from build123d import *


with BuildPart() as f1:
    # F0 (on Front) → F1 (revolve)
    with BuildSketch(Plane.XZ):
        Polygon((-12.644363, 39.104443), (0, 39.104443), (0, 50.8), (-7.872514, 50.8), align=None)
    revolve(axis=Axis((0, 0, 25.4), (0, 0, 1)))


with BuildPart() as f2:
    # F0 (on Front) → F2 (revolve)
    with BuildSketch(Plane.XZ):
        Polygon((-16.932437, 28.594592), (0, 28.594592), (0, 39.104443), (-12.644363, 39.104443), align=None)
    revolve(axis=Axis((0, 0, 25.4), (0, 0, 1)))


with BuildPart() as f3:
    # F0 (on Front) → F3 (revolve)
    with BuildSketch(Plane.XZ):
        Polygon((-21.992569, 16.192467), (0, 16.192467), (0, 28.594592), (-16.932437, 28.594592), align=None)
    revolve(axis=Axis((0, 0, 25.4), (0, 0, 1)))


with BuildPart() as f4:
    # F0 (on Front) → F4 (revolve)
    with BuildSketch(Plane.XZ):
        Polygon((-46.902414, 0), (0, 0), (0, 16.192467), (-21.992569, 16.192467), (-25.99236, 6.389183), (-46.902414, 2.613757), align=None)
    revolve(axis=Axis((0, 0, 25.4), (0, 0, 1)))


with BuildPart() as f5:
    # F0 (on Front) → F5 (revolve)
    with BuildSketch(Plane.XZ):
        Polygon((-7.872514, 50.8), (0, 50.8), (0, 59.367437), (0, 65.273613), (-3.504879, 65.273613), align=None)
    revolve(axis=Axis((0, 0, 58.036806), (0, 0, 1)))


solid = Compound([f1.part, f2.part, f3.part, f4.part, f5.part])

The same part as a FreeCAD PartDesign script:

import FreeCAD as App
import Part
import Sketcher

V = App.Vector


def add_polygon(sketch, points):
    """Adds a closed chain of lines whose ends are joined by coincident constraints."""
    first, n = sketch.GeometryCount, len(points)
    for a, b in zip(points, points[1:] + points[:1]):
        sketch.addGeometry(Part.LineSegment(App.Vector(*a, 0), App.Vector(*b, 0)), False)
    for i in range(n):
        sketch.addConstraint(Sketcher.Constraint("Coincident", first + i, 2, first + (i + 1) % n, 1))

doc = App.newDocument("Part")
body = doc.addObject("PartDesign::Body", "Body")

# Sketch on XZ plane
sketch1 = body.newObject("Sketcher::SketchObject", "Sketch")
sketch1.AttachmentSupport = (doc.getObject("XZ_Plane"), [""])
sketch1.MapMode = "FlatFace"
add_polygon(sketch1, [(-13, 39), (0, 39), (0, 51), (-8, 51)])  # lines 0-3
sketch1.addConstraint([
    Sketcher.Constraint("Horizontal", 0),
    Sketcher.Constraint("Vertical", 1),
    Sketcher.Constraint("Horizontal", 2),
    Sketcher.Constraint("PointOnObject", 0, 2, -2),
    Sketcher.Constraint("DistanceY", -1, 1, 1, 2, 50.8),
    Sketcher.Constraint("Distance", 3, 12.631571),
    Sketcher.Constraint("DistanceX", 0, 1, 0, 2, 12.644363),
    Sketcher.Constraint("DistanceX", 2, 2, 2, 1, 7.872514),
])
revolution = body.newObject("PartDesign::Revolution", "Revolution")
revolution.Profile = sketch1
revolution.ReferenceAxis = (sketch1, ["V_Axis"])
revolution.Angle = 360
body2 = doc.addObject("PartDesign::Body", "Body001")

# Sketch on XZ plane
sketch2 = body2.newObject("Sketcher::SketchObject", "Sketch001")
sketch2.AttachmentSupport = (doc.getObject("XZ_Plane001"), [""])
sketch2.MapMode = "FlatFace"
add_polygon(sketch2, [(-17, 29), (0, 29), (0, 39), (-13, 39)])  # lines 0-3
sketch2.addConstraint([
    Sketcher.Constraint("Horizontal", 0),
    Sketcher.Constraint("Vertical", 1),
    Sketcher.Constraint("Horizontal", 2),
    Sketcher.Constraint("PointOnObject", 0, 2, -2),
    Sketcher.Constraint("DistanceY", 1, 1, 1, 2, 10.509851),
    Sketcher.Constraint("Distance", 3, 11.350971),
    Sketcher.Constraint("DistanceX", 0, 1, 0, 2, 16.932437),
    Sketcher.Constraint("DistanceY", -1, 1, 0, 2, 28.594592),
])
revolution2 = body2.newObject("PartDesign::Revolution", "Revolution001")
revolution2.Profile = sketch2
revolution2.ReferenceAxis = (sketch2, ["V_Axis"])
revolution2.Angle = 360
body3 = doc.addObject("PartDesign::Body", "Body002")

# Sketch on XZ plane
sketch3 = body3.newObject("Sketcher::SketchObject", "Sketch002")
sketch3.AttachmentSupport = (doc.getObject("XZ_Plane002"), [""])
sketch3.MapMode = "FlatFace"
add_polygon(sketch3, [(-22, 16), (0, 16), (0, 29), (-17, 29)])  # lines 0-3
sketch3.addConstraint([
    Sketcher.Constraint("Horizontal", 0),
    Sketcher.Constraint("Vertical", 1),
    Sketcher.Constraint("Horizontal", 2),
    Sketcher.Constraint("PointOnObject", 0, 2, -2),
    Sketcher.Constraint("DistanceX", 0, 1, 0, 2, 21.992569),
    Sketcher.Constraint("DistanceX", 2, 2, 2, 1, 16.932437),
    Sketcher.Constraint("DistanceY", 1, 1, 1, 2, 12.402125),
    Sketcher.Constraint("DistanceY", -1, 1, 1, 2, 28.594592),
])
revolution3 = body3.newObject("PartDesign::Revolution", "Revolution002")
revolution3.Profile = sketch3
revolution3.ReferenceAxis = (sketch3, ["V_Axis"])
revolution3.Angle = 360
body4 = doc.addObject("PartDesign::Body", "Body003")

# Sketch on XZ plane
sketch4 = body4.newObject("Sketcher::SketchObject", "Sketch003")
sketch4.AttachmentSupport = (doc.getObject("XZ_Plane003"), [""])
sketch4.MapMode = "FlatFace"
add_polygon(sketch4, [(-46.9, 0), (0, 0), (0, 16.2), (-22, 16.2), (-26, 6.4), (-46.9, 2.6)])  # lines 0-5
sketch4.addConstraint([
    Sketcher.Constraint("Horizontal", 0),
    Sketcher.Constraint("Vertical", 1),
    Sketcher.Constraint("Horizontal", 2),
    Sketcher.Constraint("Vertical", 5),
    Sketcher.Constraint("Coincident", 0, 2, -1, 1),
    Sketcher.Constraint("DistanceX", 2, 2, 2, 1, 21.992569),
    Sketcher.Constraint("DistanceX", 0, 1, 0, 2, 46.902414),
    Sketcher.Constraint("DistanceY", 1, 1, 1, 2, 16.192467),
    Sketcher.Constraint("DistanceY", 5, 2, 5, 1, 2.613757),
    Sketcher.Constraint("DistanceX", 3, 2, -1, 1, 25.99236),
    Sketcher.Constraint("Distance", 3, 10.587856),
])
revolution4 = body4.newObject("PartDesign::Revolution", "Revolution003")
revolution4.Profile = sketch4
revolution4.ReferenceAxis = (sketch4, ["V_Axis"])
revolution4.Angle = 360
body5 = doc.addObject("PartDesign::Body", "Body004")

# Sketch on XZ plane
sketch5 = body5.newObject("Sketcher::SketchObject", "Sketch004")
sketch5.AttachmentSupport = (doc.getObject("XZ_Plane004"), [""])
sketch5.MapMode = "FlatFace"
add_polygon(sketch5, [(-7.9, 50.8), (0, 50.8), (0, 65.3), (-3.5, 65.3)])  # lines 0-3
sketch5.addConstraint([
    Sketcher.Constraint("Horizontal", 0),
    Sketcher.Constraint("Vertical", 1),
    Sketcher.Constraint("Horizontal", 2),
    Sketcher.Constraint("PointOnObject", 0, 2, -2),
    Sketcher.Constraint("DistanceY", -1, 1, 0, 2, 50.8),
    Sketcher.Constraint("DistanceX", 2, 2, 2, 1, 3.504879),
    Sketcher.Constraint("DistanceX", 0, 1, 0, 2, 7.872514),
    Sketcher.Constraint("DistanceY", 1, 1, 1, 2, 14.473613),
])
revolution5 = body5.newObject("PartDesign::Revolution", "Revolution004")
revolution5.Profile = sketch5
revolution5.ReferenceAxis = (sketch5, ["V_Axis"])
revolution5.Angle = 360

doc.recompute()
